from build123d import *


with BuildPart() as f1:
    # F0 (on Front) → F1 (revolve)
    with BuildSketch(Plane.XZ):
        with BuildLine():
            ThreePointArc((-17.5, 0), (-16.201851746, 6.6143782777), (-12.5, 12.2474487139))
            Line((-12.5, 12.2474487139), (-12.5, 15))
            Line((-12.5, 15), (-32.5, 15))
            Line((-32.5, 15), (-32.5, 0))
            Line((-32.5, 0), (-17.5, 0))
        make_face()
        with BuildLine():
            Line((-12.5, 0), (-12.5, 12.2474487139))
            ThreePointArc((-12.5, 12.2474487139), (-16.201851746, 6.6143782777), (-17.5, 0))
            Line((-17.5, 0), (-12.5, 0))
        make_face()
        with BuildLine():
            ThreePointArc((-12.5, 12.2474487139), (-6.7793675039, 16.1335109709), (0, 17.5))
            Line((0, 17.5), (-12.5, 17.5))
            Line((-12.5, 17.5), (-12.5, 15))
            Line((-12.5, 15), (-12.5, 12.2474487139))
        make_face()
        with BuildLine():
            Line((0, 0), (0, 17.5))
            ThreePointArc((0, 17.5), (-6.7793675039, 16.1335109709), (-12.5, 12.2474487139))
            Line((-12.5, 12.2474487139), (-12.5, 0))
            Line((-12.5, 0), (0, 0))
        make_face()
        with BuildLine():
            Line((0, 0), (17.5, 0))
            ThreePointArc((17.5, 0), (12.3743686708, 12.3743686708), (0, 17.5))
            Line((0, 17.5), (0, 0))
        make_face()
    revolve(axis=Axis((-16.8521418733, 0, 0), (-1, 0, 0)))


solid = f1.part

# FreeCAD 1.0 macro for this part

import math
import FreeCAD as App
import Part
import Sketcher

V = App.Vector

doc = App.newDocument("Part")
body = doc.addObject("PartDesign::Body", "Body")

# Sketch on XZ plane
sketch1 = body.newObject("Sketcher::SketchObject", "Sketch")
sketch1.AttachmentSupport = (doc.getObject("XZ_Plane"), [""])
sketch1.MapMode = "FlatFace"
sketch1.addGeometry(Part.LineSegment(V(-12.5, 15, 0), V(-32.5, 15, 0)), False)
sketch1.addGeometry(Part.LineSegment(V(-32.5, 15, 0), V(-32.5, 0, 0)), False)
sketch1.addGeometry(Part.LineSegment(V(-32.5, 0, 0), V(17.5, 0, 0)), False)
sketch1.addGeometry(Part.ArcOfCircle(Part.Circle(V(0, 0, 0), V(0, 0, 1), 17.5), math.radians(0), math.radians(90)), False)
sketch1.addGeometry(Part.LineSegment(V(0, 17.5, 0), V(-12.5, 17.5, 0)), False)
sketch1.addGeometry(Part.LineSegment(V(-12.5, 17.5, 0), V(-12.5, 15, 0)), False)
sketch1.addConstraint(Sketcher.Constraint("Coincident", 0, 2, 1, 1))
sketch1.addConstraint(Sketcher.Constraint("Coincident", 1, 2, 2, 1))
sketch1.addConstraint(Sketcher.Constraint("Coincident", 2, 2, 3, 1))
sketch1.addConstraint(Sketcher.Constraint("Tangent", 3, 2, 4, 1))
sketch1.addConstraint(Sketcher.Constraint("Coincident", 4, 2, 5, 1))
sketch1.addConstraint(Sketcher.Constraint("Coincident", 5, 2, 0, 1))
sketch1.addConstraint(Sketcher.Constraint("Horizontal", 0))
sketch1.addConstraint(Sketcher.Constraint("Vertical", 1))
sketch1.addConstraint(Sketcher.Constraint("Horizontal", 2))
sketch1.addConstraint(Sketcher.Constraint("Horizontal", 4))
sketch1.addConstraint(Sketcher.Constraint("Vertical", 5))
sketch1.addConstraint(Sketcher.Constraint("Coincident", 3, 3, -1, 1))
sketch1.addConstraint(Sketcher.Constraint("PointOnObject", 1, 2, -1))
sketch1.addConstraint(Sketcher.Constraint("Radius", 3, 17.5))
sketch1.addConstraint(Sketcher.Constraint("DistanceX", 0, 2, 0, 1, 20.0))
sketch1.addConstraint(Sketcher.Constraint("DistanceX", 2, 1, 2, 2, 50.0))
sketch1.addConstraint(Sketcher.Constraint("DistanceY", 1, 2, 1, 1, 15.0))
revolution = body.newObject("PartDesign::Revolution", "Revolution")
revolution.Profile = sketch1
revolution.ReferenceAxis = (sketch1, ["H_Axis"])
revolution.Angle = 360

doc.recompute()
